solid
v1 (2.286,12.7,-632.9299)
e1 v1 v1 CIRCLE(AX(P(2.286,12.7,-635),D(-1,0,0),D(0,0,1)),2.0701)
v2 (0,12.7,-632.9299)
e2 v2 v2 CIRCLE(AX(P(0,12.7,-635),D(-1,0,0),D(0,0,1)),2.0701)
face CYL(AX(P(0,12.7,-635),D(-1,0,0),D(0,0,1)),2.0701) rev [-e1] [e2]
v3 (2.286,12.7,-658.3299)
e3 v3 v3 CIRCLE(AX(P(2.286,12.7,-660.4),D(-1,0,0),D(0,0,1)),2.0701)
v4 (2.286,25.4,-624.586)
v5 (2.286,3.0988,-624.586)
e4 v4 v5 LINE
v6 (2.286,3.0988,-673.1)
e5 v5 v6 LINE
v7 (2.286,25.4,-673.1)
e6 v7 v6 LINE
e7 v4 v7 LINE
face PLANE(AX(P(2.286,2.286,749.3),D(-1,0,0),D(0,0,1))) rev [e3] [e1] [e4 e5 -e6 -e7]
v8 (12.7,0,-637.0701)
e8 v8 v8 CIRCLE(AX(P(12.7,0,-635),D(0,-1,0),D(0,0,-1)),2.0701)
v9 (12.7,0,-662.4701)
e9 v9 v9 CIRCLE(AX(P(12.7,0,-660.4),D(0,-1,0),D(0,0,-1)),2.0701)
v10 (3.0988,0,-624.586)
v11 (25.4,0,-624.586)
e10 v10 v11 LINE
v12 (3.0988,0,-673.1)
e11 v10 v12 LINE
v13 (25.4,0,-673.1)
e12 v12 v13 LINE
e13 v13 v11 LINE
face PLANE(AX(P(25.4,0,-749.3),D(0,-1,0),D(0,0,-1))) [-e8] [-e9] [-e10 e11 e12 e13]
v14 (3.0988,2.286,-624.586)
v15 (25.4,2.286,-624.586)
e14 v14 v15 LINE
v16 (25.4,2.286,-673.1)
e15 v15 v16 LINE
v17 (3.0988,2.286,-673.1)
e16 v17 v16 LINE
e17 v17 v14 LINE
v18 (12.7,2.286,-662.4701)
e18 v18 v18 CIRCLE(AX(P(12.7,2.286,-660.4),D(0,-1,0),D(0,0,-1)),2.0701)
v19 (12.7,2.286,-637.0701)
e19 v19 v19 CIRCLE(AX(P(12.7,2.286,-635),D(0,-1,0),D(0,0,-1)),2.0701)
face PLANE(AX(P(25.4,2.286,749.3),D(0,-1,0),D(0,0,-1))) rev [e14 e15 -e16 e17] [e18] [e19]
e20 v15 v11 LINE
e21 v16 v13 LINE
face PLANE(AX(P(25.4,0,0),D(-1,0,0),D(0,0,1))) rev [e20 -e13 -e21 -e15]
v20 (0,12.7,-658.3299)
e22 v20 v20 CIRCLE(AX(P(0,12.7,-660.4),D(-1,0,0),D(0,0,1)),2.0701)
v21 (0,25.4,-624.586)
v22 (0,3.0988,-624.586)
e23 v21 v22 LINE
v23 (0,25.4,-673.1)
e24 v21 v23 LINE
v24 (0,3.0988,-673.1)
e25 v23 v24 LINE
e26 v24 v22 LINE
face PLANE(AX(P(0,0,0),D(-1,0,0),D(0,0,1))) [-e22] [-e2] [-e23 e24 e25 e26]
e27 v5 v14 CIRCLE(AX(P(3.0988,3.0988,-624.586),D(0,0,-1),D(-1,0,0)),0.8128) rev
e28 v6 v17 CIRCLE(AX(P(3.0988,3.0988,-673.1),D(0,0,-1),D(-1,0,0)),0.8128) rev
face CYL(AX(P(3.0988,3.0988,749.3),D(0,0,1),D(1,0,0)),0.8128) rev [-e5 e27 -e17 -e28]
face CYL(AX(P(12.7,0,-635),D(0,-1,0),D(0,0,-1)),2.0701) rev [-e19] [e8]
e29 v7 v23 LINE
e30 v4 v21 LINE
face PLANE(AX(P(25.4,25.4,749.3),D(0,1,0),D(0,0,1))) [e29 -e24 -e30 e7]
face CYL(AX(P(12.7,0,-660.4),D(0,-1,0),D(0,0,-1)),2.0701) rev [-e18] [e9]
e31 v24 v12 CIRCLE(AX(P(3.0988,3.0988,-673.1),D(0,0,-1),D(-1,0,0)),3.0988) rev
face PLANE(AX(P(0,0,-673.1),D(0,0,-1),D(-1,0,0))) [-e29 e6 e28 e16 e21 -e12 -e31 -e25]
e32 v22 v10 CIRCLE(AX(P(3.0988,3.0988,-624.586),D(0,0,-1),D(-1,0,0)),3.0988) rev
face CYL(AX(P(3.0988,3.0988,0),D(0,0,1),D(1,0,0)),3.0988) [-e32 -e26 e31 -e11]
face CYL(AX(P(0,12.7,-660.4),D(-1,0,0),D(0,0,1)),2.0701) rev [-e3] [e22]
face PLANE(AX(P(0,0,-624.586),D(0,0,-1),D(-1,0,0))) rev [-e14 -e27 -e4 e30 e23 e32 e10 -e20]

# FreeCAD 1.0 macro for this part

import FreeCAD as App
import Part
import Sketcher
Q = App.Units.Quantity


def edges_at(feature, points):
    """Names of the edges that pass closest to the given points."""
    edges = feature.Shape.Edges
    near = lambda p: min(range(len(edges)), key=lambda i: edges[i].distToShape(Part.Vertex(*p))[0])
    return sorted({f"Edge{near(p) + 1}" for p in points})


def add_polygon(sketch, points):
    """Adds a closed chain of lines whose ends are joined by coincident constraints."""
    first, n = sketch.GeometryCount, len(points)
    for a, b in zip(points, points[1:] + points[:1]):
        sketch.addGeometry(Part.LineSegment(App.Vector(*a, 0), App.Vector(*b, 0)), False)
    for i in range(n):
        sketch.addConstraint(Sketcher.Constraint("Coincident", first + i, 2, first + (i + 1) % n, 1))

doc = App.newDocument("Part")
body = doc.addObject("PartDesign::Body", "Body")

sketch1 = body.newObject("Sketcher::SketchObject", "Sketch")
sketch1.AttachmentSupport = (doc.getObject("YZ_Plane"), [""])
sketch1.MapMode = "FlatFace"
add_polygon(sketch1, [(25.4, 749.3), (25.4, -749.3), (0, -749.3), (0, 749.3)])
sketch1.addConstraint(Sketcher.Constraint("Vertical", 0))
sketch1.addConstraint(Sketcher.Constraint("Horizontal", 1))
sketch1.addConstraint(Sketcher.Constraint("Vertical", 2))
sketch1.addConstraint(Sketcher.Constraint("Horizontal", 3))
sketch1.addConstraint(Sketcher.Constraint("Symmetric", 1, 2, 2, 2, -1, 1))
sketch1.addConstraint(Sketcher.Constraint("DistanceX", 1, 2, 1, 1, Q("1 in")))
sketch1.addConstraint(Sketcher.Constraint("DistanceY", 0, 2, 0, 1, Q("59 in")))
pad1 = body.newObject("PartDesign::Pad", "Pad")
pad1.Profile = sketch1
pad1.Length = Q("1 in")

sketch2 = body.newObject("Sketcher::SketchObject", "Sketch001")
sketch2.AttachmentSupport = (doc.getObject("XY_Plane"), [""])
sketch2.MapMode = "FlatFace"
sketch2.AttachmentOffset = App.Placement(App.Vector(0, 0, -29.5 * 25.4), App.Rotation())
add_polygon(sketch2, [(25.4, 25.4), (25.4, 2.286), (2.286, 2.286), (2.286, 25.4)])
sketch2.addConstraint(Sketcher.Constraint("Vertical", 0))
sketch2.addConstraint(Sketcher.Constraint("Horizontal", 1))
sketch2.addConstraint(Sketcher.Constraint("Vertical", 2))
sketch2.addConstraint(Sketcher.Constraint("Horizontal", 3))
sketch2.addConstraint(Sketcher.Constraint("Equal", 3, 0))
sketch2.addConstraint(Sketcher.Constraint("DistanceX", -1, 1, 0, 2, Q("1 in")))
sketch2.addConstraint(Sketcher.Constraint("DistanceY", -1, 1, 2, 2, Q("1 in")))
sketch2.addConstraint(Sketcher.Constraint("DistanceX", 1, 2, 1, 1, Q("0.91 in")))
pocket1 = body.newObject("PartDesign::Pocket", "Pocket")
pocket1.Profile = sketch2
pocket1.Type = "ThroughAll"
pocket1.Reversed = True

sketch3 = body.newObject("Sketcher::SketchObject", "Sketch002")
sketch3.AttachmentSupport = (doc.getObject("XZ_Plane"), [""])
sketch3.MapMode = "FlatFace"
sketch3.addGeometry(Part.Circle(App.Vector(12.7, -736.6, 0), App.Vector(0, 0, 1), 2.0701), False)
sketch3.addGeometry(Part.Circle(App.Vector(12.7, -711.2, 0), App.Vector(0, 0, 1), 2.0701), False)
sketch3.addGeometry(Part.Circle(App.Vector(12.7, -685.8, 0), App.Vector(0, 0, 1), 2.0701), False)
sketch3.addGeometry(Part.Circle(App.Vector(12.7, -660.4, 0), App.Vector(0, 0, 1), 2.0701), False)
sketch3.addGeometry(Part.Circle(App.Vector(12.7, -635, 0), App.Vector(0, 0, 1), 2.0701), False)
sketch3.addGeometry(Part.Circle(App.Vector(12.7, -609.6, 0), App.Vector(0, 0, 1), 2.0701), False)
sketch3.addGeometry(Part.Circle(App.Vector(12.7, -584.2, 0), App.Vector(0, 0, 1), 2.0701), False)
sketch3.addGeometry(Part.Circle(App.Vector(12.7, -558.8, 0), App.Vector(0, 0, 1), 2.0701), False)
sketch3.addGeometry(Part.Circle(App.Vector(12.7, -533.4, 0), App.Vector(0, 0, 1), 2.0701), False)
sketch3.addGeometry(Part.Circle(App.Vector(12.7, -508, 0), App.Vector(0, 0, 1), 2.0701), False)
sketch3.addGeometry(Part.Circle(App.Vector(12.7, -482.6, 0), App.Vector(0, 0, 1), 2.0701), False)
sketch3.addGeometry(Part.Circle(App.Vector(12.7, -457.2, 0), App.Vector(0, 0, 1), 2.0701), False)
sketch3.addGeometry(Part.Circle(App.Vector(12.7, -431.8, 0), App.Vector(0, 0, 1), 2.0701), False)
sketch3.addGeometry(Part.Circle(App.Vector(12.7, -406.4, 0), App.Vector(0, 0, 1), 2.0701), False)
sketch3.addGeometry(Part.Circle(App.Vector(12.7, -381, 0), App.Vector(0, 0, 1), 2.0701), False)
sketch3.addGeometry(Part.Circle(App.Vector(12.7, -355.6, 0), App.Vector(0, 0, 1), 2.0701), False)
sketch3.addGeometry(Part.Circle(App.Vector(12.7, -330.2, 0), App.Vector(0, 0, 1), 2.0701), False)
sketch3.addGeometry(Part.Circle(App.Vector(12.7, -304.8, 0), App.Vector(0, 0, 1), 2.0701), False)
sketch3.addGeometry(Part.Circle(App.Vector(12.7, -279.4, 0), App.Vector(0, 0, 1), 2.0701), False)
sketch3.addGeometry(Part.Circle(App.Vector(12.7, -254, 0), App.Vector(0, 0, 1), 2.0701), False)
sketch3.addGeometry(Part.Circle(App.Vector(12.7, -228.6, 0), App.Vector(0, 0, 1), 2.0701), False)
sketch3.addGeometry(Part.Circle(App.Vector(12.7, -203.2, 0), App.Vector(0, 0, 1), 2.0701), False)
sketch3.addGeometry(Part.Circle(App.Vector(12.7, -177.8, 0), App.Vector(0, 0, 1), 2.0701), False)
sketch3.addGeometry(Part.Circle(App.Vector(12.7, -152.4, 0), App.Vector(0, 0, 1), 2.0701), False)
sketch3.addGeometry(Part.Circle(App.Vector(12.7, -127, 0), App.Vector(0, 0, 1), 2.0701), False)
sketch3.addGeometry(Part.Circle(App.Vector(12.7, -101.6, 0), App.Vector(0, 0, 1), 2.0701), False)
sketch3.addGeometry(Part.Circle(App.Vector(12.7, -76.2, 0), App.Vector(0, 0, 1), 2.0701), False)
sketch3.addGeometry(Part.Circle(App.Vector(12.7, -50.8, 0), App.Vector(0, 0, 1), 2.0701), False)
sketch3.addGeometry(Part.Circle(App.Vector(12.7, -25.4, 0), App.Vector(0, 0, 1), 2.0701), False)
sketch3.addGeometry(Part.Circle(App.Vector(12.7, 0, 0), App.Vector(0, 0, 1), 2.0701), False)
sketch3.addGeometry(Part.Circle(App.Vector(12.7, 25.4, 0), App.Vector(0, 0, 1), 2.0701), False)
sketch3.addGeometry(Part.Circle(App.Vector(12.7, 50.8, 0), App.Vector(0, 0, 1), 2.0701), False)
sketch3.addGeometry(Part.Circle(App.Vector(12.7, 76.2, 0), App.Vector(0, 0, 1), 2.0701), False)
sketch3.addGeometry(Part.Circle(App.Vector(12.7, 101.6, 0), App.Vector(0, 0, 1), 2.0701), False)
sketch3.addGeometry(Part.Circle(App.Vector(12.7, 127, 0), App.Vector(0, 0, 1), 2.0701), False)
sketch3.addGeometry(Part.Circle(App.Vector(12.7, 152.4, 0), App.Vector(0, 0, 1), 2.0701), False)
sketch3.addGeometry(Part.Circle(App.Vector(12.7, 177.8, 0), App.Vector(0, 0, 1), 2.0701), False)
sketch3.addGeometry(Part.Circle(App.Vector(12.7, 203.2, 0), App.Vector(0, 0, 1), 2.0701), False)
sketch3.addGeometry(Part.Circle(App.Vector(12.7, 228.6, 0), App.Vector(0, 0, 1), 2.0701), False)
sketch3.addGeometry(Part.Circle(App.Vector(12.7, 254, 0), App.Vector(0, 0, 1), 2.0701), False)
sketch3.addGeometry(Part.Circle(App.Vector(12.7, 279.4, 0), App.Vector(0, 0, 1), 2.0701), False)
sketch3.addGeometry(Part.Circle(App.Vector(12.7, 304.8, 0), App.Vector(0, 0, 1), 2.0701), False)
sketch3.addGeometry(Part.Circle(App.Vector(12.7, 330.2, 0), App.Vector(0, 0, 1), 2.0701), False)
sketch3.addGeometry(Part.Circle(App.Vector(12.7, 355.6, 0), App.Vector(0, 0, 1), 2.0701), False)
sketch3.addGeometry(Part.Circle(App.Vector(12.7, 381, 0), App.Vector(0, 0, 1), 2.0701), False)
sketch3.addGeometry(Part.Circle(App.Vector(12.7, 406.4, 0), App.Vector(0, 0, 1), 2.0701), False)
sketch3.addGeometry(Part.Circle(App.Vector(12.7, 431.8, 0), App.Vector(0, 0, 1), 2.0701), False)
sketch3.addGeometry(Part.Circle(App.Vector(12.7, 457.2, 0), App.Vector(0, 0, 1), 2.0701), False)
sketch3.addGeometry(Part.Circle(App.Vector(12.7, 482.6, 0), App.Vector(0, 0, 1), 2.0701), False)
sketch3.addGeometry(Part.Circle(App.Vector(12.7, 508, 0), App.Vector(0, 0, 1), 2.0701), False)
sketch3.addGeometry(Part.Circle(App.Vector(12.7, 533.4, 0), App.Vector(0, 0, 1), 2.0701), False)
sketch3.addGeometry(Part.Circle(App.Vector(12.7, 558.8, 0), App.Vector(0, 0, 1), 2.0701), False)
sketch3.addGeometry(Part.Circle(App.Vector(12.7, 584.2, 0), App.Vector(0, 0, 1), 2.0701), False)
sketch3.addGeometry(Part.Circle(App.Vector(12.7, 609.6, 0), App.Vector(0, 0, 1), 2.0701), False)
sketch3.addGeometry(Part.Circle(App.Vector(12.7, 635, 0), App.Vector(0, 0, 1), 2.0701), False)
sketch3.addGeometry(Part.Circle(App.Vector(12.7, 660.4, 0), App.Vector(0, 0, 1), 2.0701), False)
sketch3.addGeometry(Part.Circle(App.Vector(12.7, 685.8, 0), App.Vector(0, 0, 1), 2.0701), False)
sketch3.addGeometry(Part.Circle(App.Vector(12.7, 711.2, 0), App.Vector(0, 0, 1), 2.0701), False)
sketch3.addGeometry(Part.Circle(App.Vector(12.7, 736.6, 0), App.Vector(0, 0, 1), 2.0701), False)
sketch3.addConstraint(Sketcher.Constraint("Equal", 0, 1))
sketch3.addConstraint(Sketcher.Constraint("Equal", 1, 2))
sketch3.addConstraint(Sketcher.Constraint("Equal", 2, 3))
sketch3.addConstraint(Sketcher.Constraint("Equal", 3, 4))
sketch3.addConstraint(Sketcher.Constraint("Equal", 4, 5))
sketch3.addConstraint(Sketcher.Constraint("Equal", 5, 6))
sketch3.addConstraint(Sketcher.Constraint("Equal", 6, 7))
sketch3.addConstraint(Sketcher.Constraint("Equal", 7, 8))
sketch3.addConstraint(Sketcher.Constraint("Equal", 8, 9))
sketch3.addConstraint(Sketcher.Constraint("Equal", 9, 10))
sketch3.addConstraint(Sketcher.Constraint("Equal", 10, 11))
sketch3.addConstraint(Sketcher.Constraint("Equal", 11, 12))
sketch3.addConstraint(Sketcher.Constraint("Equal", 12, 13))
sketch3.addConstraint(Sketcher.Constraint("Equal", 13, 14))
sketch3.addConstraint(Sketcher.Constraint("Equal", 14, 15))
sketch3.addConstraint(Sketcher.Constraint("Equal", 15, 16))
sketch3.addConstraint(Sketcher.Constraint("Equal", 16, 17))
sketch3.addConstraint(Sketcher.Constraint("Equal", 17, 18))
sketch3.addConstraint(Sketcher.Constraint("Equal", 18, 19))
sketch3.addConstraint(Sketcher.Constraint("Equal", 19, 20))
sketch3.addConstraint(Sketcher.Constraint("Equal", 20, 21))
sketch3.addConstraint(Sketcher.Constraint("Equal", 21, 22))
sketch3.addConstraint(Sketcher.Constraint("Equal", 22, 23))
sketch3.addConstraint(Sketcher.Constraint("Equal", 23, 24))
sketch3.addConstraint(Sketcher.Constraint("Equal", 24, 25))
sketch3.addConstraint(Sketcher.Constraint("Equal", 25, 26))
sketch3.addConstraint(Sketcher.Constraint("Equal", 26, 27))
sketch3.addConstraint(Sketcher.Constraint("Equal", 27, 28))
sketch3.addConstraint(Sketcher.Constraint("Equal", 28, 29))
sketch3.addConstraint(Sketcher.Constraint("Equal", 29, 30))
sketch3.addConstraint(Sketcher.Constraint("Equal", 30, 31))
sketch3.addConstraint(Sketcher.Constraint("Equal", 31, 32))
sketch3.addConstraint(Sketcher.Constraint("Equal", 32, 33))
sketch3.addConstraint(Sketcher.Constraint("Equal", 33, 34))
sketch3.addConstraint(Sketcher.Constraint("Equal", 34, 35))
sketch3.addConstraint(Sketcher.Constraint("Equal", 35, 36))
sketch3.addConstraint(Sketcher.Constraint("Equal", 36, 37))
sketch3.addConstraint(Sketcher.Constraint("Equal", 37, 38))
sketch3.addConstraint(Sketcher.Constraint("Equal", 38, 39))
sketch3.addConstraint(Sketcher.Constraint("Equal", 39, 40))
sketch3.addConstraint(Sketcher.Constraint("Equal", 40, 41))
sketch3.addConstraint(Sketcher.Constraint("Equal", 41, 42))
sketch3.addConstraint(Sketcher.Constraint("Equal", 42, 43))
sketch3.addConstraint(Sketcher.Constraint("Equal", 43, 44))
sketch3.addConstraint(Sketcher.Constraint("Equal", 44, 45))
sketch3.addConstraint(Sketcher.Constraint("Equal", 45, 46))
sketch3.addConstraint(Sketcher.Constraint("Equal", 46, 47))
sketch3.addConstraint(Sketcher.Constraint("Equal", 47, 48))
sketch3.addConstraint(Sketcher.Constraint("Equal", 48, 49))
sketch3.addConstraint(Sketcher.Constraint("Equal", 49, 50))
sketch3.addConstraint(Sketcher.Constraint("Equal", 50, 51))
sketch3.addConstraint(Sketcher.Constraint("Equal", 51, 52))
sketch3.addConstraint(Sketcher.Constraint("Equal", 52, 53))
sketch3.addConstraint(Sketcher.Constraint("Equal", 53, 54))
sketch3.addConstraint(Sketcher.Constraint("Equal", 54, 55))
sketch3.addConstraint(Sketcher.Constraint("Equal", 55, 56))
sketch3.addConstraint(Sketcher.Constraint("Equal", 56, 57))
sketch3.addConstraint(Sketcher.Constraint("Equal", 57, 58))
sketch3.addConstraint(Sketcher.Constraint("Symmetric", 28, 3, 30, 3, -1))
sketch3.addConstraint(Sketcher.Constraint("Symmetric", 27, 3, 31, 3, -1))
sketch3.addConstraint(Sketcher.Constraint("Symmetric", 26, 3, 32, 3, -1))
sketch3.addConstraint(Sketcher.Constraint("Symmetric", 25, 3, 33, 3, -1))
sketch3.addConstraint(Sketcher.Constraint("Symmetric", 24, 3, 34, 3, -1))
sketch3.addConstraint(Sketcher.Constraint("Symmetric", 23, 3, 35, 3, -1))
sketch3.addConstraint(Sketcher.Constraint("Symmetric", 22, 3, 36, 3, -1))
sketch3.addConstraint(Sketcher.Constraint("Symmetric", 21, 3, 37, 3, -1))
sketch3.addConstraint(Sketcher.Constraint("Symmetric", 20, 3, 38, 3, -1))
sketch3.addConstraint(Sketcher.Constraint("Symmetric", 19, 3, 39, 3, -1))
sketch3.addConstraint(Sketcher.Constraint("Symmetric", 18, 3, 40, 3, -1))
sketch3.addConstraint(Sketcher.Constraint("Symmetric", 17, 3, 41, 3, -1))
sketch3.addConstraint(Sketcher.Constraint("Symmetric", 16, 3, 42, 3, -1))
sketch3.addConstraint(Sketcher.Constraint("Symmetric", 15, 3, 43, 3, -1))
sketch3.addConstraint(Sketcher.Constraint("Symmetric", 14, 3, 44, 3, -1))
sketch3.addConstraint(Sketcher.Constraint("Symmetric", 13, 3, 45, 3, -1))
sketch3.addConstraint(Sketcher.Constraint("Symmetric", 12, 3, 46, 3, -1))
sketch3.addConstraint(Sketcher.Constraint("Symmetric", 11, 3, 47, 3, -1))
sketch3.addConstraint(Sketcher.Constraint("Symmetric", 10, 3, 48, 3, -1))
sketch3.addConstraint(Sketcher.Constraint("Symmetric", 9, 3, 49, 3, -1))
sketch3.addConstraint(Sketcher.Constraint("Symmetric", 8, 3, 50, 3, -1))
sketch3.addConstraint(Sketcher.Constraint("Symmetric", 7, 3, 51, 3, -1))
sketch3.addConstraint(Sketcher.Constraint("Symmetric", 6, 3, 52, 3, -1))
sketch3.addConstraint(Sketcher.Constraint("Symmetric", 5, 3, 53, 3, -1))
sketch3.addConstraint(Sketcher.Constraint("Symmetric", 4, 3, 54, 3, -1))
sketch3.addConstraint(Sketcher.Constraint("Symmetric", 3, 3, 55, 3, -1))
sketch3.addConstraint(Sketcher.Constraint("Symmetric", 2, 3, 56, 3, -1))
sketch3.addConstraint(Sketcher.Constraint("Symmetric", 1, 3, 57, 3, -1))
sketch3.addConstraint(Sketcher.Constraint("Symmetric", 0, 3, 58, 3, -1))
sketch3.addConstraint(Sketcher.Constraint("PointOnObject", 29, 3, -1))
sketch3.addConstraint(Sketcher.Constraint("Vertical", 0, 3, 1, 3))
sketch3.addConstraint(Sketcher.Constraint("Vertical", 1, 3, 2, 3))
sketch3.addConstraint(Sketcher.Constraint("Vertical", 2, 3, 3, 3))
sketch3.addConstraint(Sketcher.Constraint("Vertical", 3, 3, 4, 3))
sketch3.addConstraint(Sketcher.Constraint("Vertical", 4, 3, 5, 3))
sketch3.addConstraint(Sketcher.Constraint("Vertical", 5, 3, 6, 3))
sketch3.addConstraint(Sketcher.Constraint("Vertical", 6, 3, 7, 3))
sketch3.addConstraint(Sketcher.Constraint("Vertical", 7, 3, 8, 3))
sketch3.addConstraint(Sketcher.Constraint("Vertical", 8, 3, 9, 3))
sketch3.addConstraint(Sketcher.Constraint("Vertical", 9, 3, 10, 3))
sketch3.addConstraint(Sketcher.Constraint("Vertical", 10, 3, 11, 3))
sketch3.addConstraint(Sketcher.Constraint("Vertical", 11, 3, 12, 3))
sketch3.addConstraint(Sketcher.Constraint("Vertical", 12, 3, 13, 3))
sketch3.addConstraint(Sketcher.Constraint("Vertical", 13, 3, 14, 3))
sketch3.addConstraint(Sketcher.Constraint("Vertical", 14, 3, 15, 3))
sketch3.addConstraint(Sketcher.Constraint("Vertical", 15, 3, 16, 3))
sketch3.addConstraint(Sketcher.Constraint("Vertical", 16, 3, 17, 3))
sketch3.addConstraint(Sketcher.Constraint("Vertical", 17, 3, 18, 3))
sketch3.addConstraint(Sketcher.Constraint("Vertical", 18, 3, 19, 3))
sketch3.addConstraint(Sketcher.Constraint("Vertical", 19, 3, 20, 3))
sketch3.addConstraint(Sketcher.Constraint("Vertical", 20, 3, 21, 3))
sketch3.addConstraint(Sketcher.Constraint("Vertical", 21, 3, 22, 3))
sketch3.addConstraint(Sketcher.Constraint("Vertical", 22, 3, 23, 3))
sketch3.addConstraint(Sketcher.Constraint("Vertical", 23, 3, 24, 3))
sketch3.addConstraint(Sketcher.Constraint("Vertical", 24, 3, 25, 3))
sketch3.addConstraint(Sketcher.Constraint("Vertical", 25, 3, 26, 3))
sketch3.addConstraint(Sketcher.Constraint("Vertical", 26, 3, 27, 3))
sketch3.addConstraint(Sketcher.Constraint("Vertical", 27, 3, 28, 3))
sketch3.addConstraint(Sketcher.Constraint("Vertical", 28, 3, 29, 3))
sketch3.addConstraint(Sketcher.Constraint("Diameter", 0, Q("0.163 in")))
sketch3.addConstraint(Sketcher.Constraint("DistanceY", 0, 3, -1, 1, Q("29 in")))
sketch3.addConstraint(Sketcher.Constraint("DistanceY", 1, 3, -1, 1, Q("28 in")))
sketch3.addConstraint(Sketcher.Constraint("DistanceY", 2, 3, -1, 1, Q("27 in")))
sketch3.addConstraint(Sketcher.Constraint("DistanceY", 3, 3, -1, 1, Q("26 in")))
sketch3.addConstraint(Sketcher.Constraint("DistanceY", 4, 3, -1, 1, Q("25 in")))
sketch3.addConstraint(Sketcher.Constraint("DistanceY", 5, 3, -1, 1, Q("24 in")))
sketch3.addConstraint(Sketcher.Constraint("DistanceY", 6, 3, -1, 1, Q("23 in")))
sketch3.addConstraint(Sketcher.Constraint("DistanceY", 7, 3, -1, 1, Q("22 in")))
sketch3.addConstraint(Sketcher.Constraint("DistanceY", 8, 3, -1, 1, Q("21 in")))
sketch3.addConstraint(Sketcher.Constraint("DistanceY", 9, 3, -1, 1, Q("20 in")))
sketch3.addConstraint(Sketcher.Constraint("DistanceY", 10, 3, -1, 1, Q("19 in")))
sketch3.addConstraint(Sketcher.Constraint("DistanceY", 11, 3, -1, 1, Q("18 in")))
sketch3.addConstraint(Sketcher.Constraint("DistanceY", 12, 3, -1, 1, Q("17 in")))
sketch3.addConstraint(Sketcher.Constraint("DistanceY", 13, 3, -1, 1, Q("16 in")))
sketch3.addConstraint(Sketcher.Constraint("DistanceY", 14, 3, -1, 1, Q("15 in")))
sketch3.addConstraint(Sketcher.Constraint("DistanceY", 15, 3, -1, 1, Q("14 in")))
sketch3.addConstraint(Sketcher.Constraint("DistanceY", 16, 3, -1, 1, Q("13 in")))
sketch3.addConstraint(Sketcher.Constraint("DistanceY", 17, 3, -1, 1, Q("12 in")))
sketch3.addConstraint(Sketcher.Constraint("DistanceY", 18, 3, -1, 1, Q("11 in")))
sketch3.addConstraint(Sketcher.Constraint("DistanceY", 19, 3, -1, 1, Q("10 in")))
sketch3.addConstraint(Sketcher.Constraint("DistanceY", 20, 3, -1, 1, Q("9 in")))
sketch3.addConstraint(Sketcher.Constraint("DistanceY", 21, 3, -1, 1, Q("8 in")))
sketch3.addConstraint(Sketcher.Constraint("DistanceY", 22, 3, -1, 1, Q("7 in")))
sketch3.addConstraint(Sketcher.Constraint("DistanceY", 23, 3, -1, 1, Q("6 in")))
sketch3.addConstraint(Sketcher.Constraint("DistanceY", 24, 3, -1, 1, Q("5 in")))
sketch3.addConstraint(Sketcher.Constraint("DistanceY", 25, 3, -1, 1, Q("4 in")))
sketch3.addConstraint(Sketcher.Constraint("DistanceY", 26, 3, -1, 1, Q("3 in")))
sketch3.addConstraint(Sketcher.Constraint("DistanceY", 27, 3, -1, 1, Q("2 in")))
sketch3.addConstraint(Sketcher.Constraint("DistanceY", 28, 3, -1, 1, Q("1 in")))
sketch3.addConstraint(Sketcher.Constraint("DistanceX", -1, 1, 0, 3, Q("0.5 in")))
doc.recompute()
hole = body.newObject("PartDesign::Hole", "Hole")
hole.Profile = sketch3
hole.ThreadType = "None"
hole.Diameter = Q("0.163 in")
hole.DepthType = "Dimension"
hole.Depth = Q("1 in")
hole.DrillPoint = "Flat"

sketch4 = body.newObject("Sketcher::SketchObject", "Sketch003")
sketch4.AttachmentSupport = (doc.getObject("YZ_Plane"), [""])
sketch4.MapMode = "FlatFace"
sketch4.addGeometry(Part.Circle(App.Vector(12.7, 711.2, 0), App.Vector(0, 0, 1), 2.0701), False)
sketch4.addGeometry(Part.Circle(App.Vector(12.7, 736.6, 0), App.Vector(0, 0, 1), 2.0701), False)
sketch4.addGeometry(Part.Circle(App.Vector(12.7, 685.8, 0), App.Vector(0, 0, 1), 2.0701), False)
sketch4.addGeometry(Part.Circle(App.Vector(12.7, 660.4, 0), App.Vector(0, 0, 1), 2.0701), False)
sketch4.addGeometry(Part.Circle(App.Vector(12.7, 635, 0), App.Vector(0, 0, 1), 2.0701), False)
sketch4.addGeometry(Part.Circle(App.Vector(12.7, 609.6, 0), App.Vector(0, 0, 1), 2.0701), False)
sketch4.addGeometry(Part.Circle(App.Vector(12.7, 584.2, 0), App.Vector(0, 0, 1), 2.0701), False)
sketch4.addGeometry(Part.Circle(App.Vector(12.7, 558.8, 0), App.Vector(0, 0, 1), 2.0701), False)
sketch4.addGeometry(Part.Circle(App.Vector(12.7, 533.4, 0), App.Vector(0, 0, 1), 2.0701), False)
sketch4.addGeometry(Part.Circle(App.Vector(12.7, 508, 0), App.Vector(0, 0, 1), 2.0701), False)
sketch4.addGeometry(Part.Circle(App.Vector(12.7, 482.6, 0), App.Vector(0, 0, 1), 2.0701), False)
sketch4.addGeometry(Part.Circle(App.Vector(12.7, 457.2, 0), App.Vector(0, 0, 1), 2.0701), False)
sketch4.addGeometry(Part.Circle(App.Vector(12.7, 431.8, 0), App.Vector(0, 0, 1), 2.0701), False)
sketch4.addGeometry(Part.Circle(App.Vector(12.7, 406.4, 0), App.Vector(0, 0, 1), 2.0701), False)
sketch4.addGeometry(Part.Circle(App.Vector(12.7, 381, 0), App.Vector(0, 0, 1), 2.0701), False)
sketch4.addGeometry(Part.Circle(App.Vector(12.7, 355.6, 0), App.Vector(0, 0, 1), 2.0701), False)
sketch4.addGeometry(Part.Circle(App.Vector(12.7, 330.2, 0), App.Vector(0, 0, 1), 2.0701), False)
sketch4.addGeometry(Part.Circle(App.Vector(12.7, 304.8, 0), App.Vector(0, 0, 1), 2.0701), False)
sketch4.addGeometry(Part.Circle(App.Vector(12.7, 279.4, 0), App.Vector(0, 0, 1), 2.0701), False)
sketch4.addGeometry(Part.Circle(App.Vector(12.7, 254, 0), App.Vector(0, 0, 1), 2.0701), False)
sketch4.addGeometry(Part.Circle(App.Vector(12.7, 228.6, 0), App.Vector(0, 0, 1), 2.0701), False)
sketch4.addGeometry(Part.Circle(App.Vector(12.7, 203.2, 0), App.Vector(0, 0, 1), 2.0701), False)
sketch4.addGeometry(Part.Circle(App.Vector(12.7, 177.8, 0), App.Vector(0, 0, 1), 2.0701), False)
sketch4.addGeometry(Part.Circle(App.Vector(12.7, 152.4, 0), App.Vector(0, 0, 1), 2.0701), False)
sketch4.addGeometry(Part.Circle(App.Vector(12.7, 127, 0), App.Vector(0, 0, 1), 2.0701), False)
sketch4.addGeometry(Part.Circle(App.Vector(12.7, 101.6, 0), App.Vector(0, 0, 1), 2.0701), False)
sketch4.addGeometry(Part.Circle(App.Vector(12.7, 76.2, 0), App.Vector(0, 0, 1), 2.0701), False)
sketch4.addGeometry(Part.Circle(App.Vector(12.7, 50.8, 0), App.Vector(0, 0, 1), 2.0701), False)
sketch4.addGeometry(Part.Circle(App.Vector(12.7, 25.4, 0), App.Vector(0, 0, 1), 2.0701), False)
sketch4.addGeometry(Part.Circle(App.Vector(12.7, 0, 0), App.Vector(0, 0, 1), 2.0701), False)
sketch4.addGeometry(Part.Circle(App.Vector(12.7, -25.4, 0), App.Vector(0, 0, 1), 2.0701), False)
sketch4.addGeometry(Part.Circle(App.Vector(12.7, -50.8, 0), App.Vector(0, 0, 1), 2.0701), False)
sketch4.addGeometry(Part.Circle(App.Vector(12.7, -76.2, 0), App.Vector(0, 0, 1), 2.0701), False)
sketch4.addGeometry(Part.Circle(App.Vector(12.7, -101.6, 0), App.Vector(0, 0, 1), 2.0701), False)
sketch4.addGeometry(Part.Circle(App.Vector(12.7, -127, 0), App.Vector(0, 0, 1), 2.0701), False)
sketch4.addGeometry(Part.Circle(App.Vector(12.7, -152.4, 0), App.Vector(0, 0, 1), 2.0701), False)
sketch4.addGeometry(Part.Circle(App.Vector(12.7, -177.8, 0), App.Vector(0, 0, 1), 2.0701), False)
sketch4.addGeometry(Part.Circle(App.Vector(12.7, -203.2, 0), App.Vector(0, 0, 1), 2.0701), False)
sketch4.addGeometry(Part.Circle(App.Vector(12.7, -228.6, 0), App.Vector(0, 0, 1), 2.0701), False)
sketch4.addGeometry(Part.Circle(App.Vector(12.7, -254, 0), App.Vector(0, 0, 1), 2.0701), False)
sketch4.addGeometry(Part.Circle(App.Vector(12.7, -279.4, 0), App.Vector(0, 0, 1), 2.0701), False)
sketch4.addGeometry(Part.Circle(App.Vector(12.7, -304.8, 0), App.Vector(0, 0, 1), 2.0701), False)
sketch4.addGeometry(Part.Circle(App.Vector(12.7, -330.2, 0), App.Vector(0, 0, 1), 2.0701), False)
sketch4.addGeometry(Part.Circle(App.Vector(12.7, -355.6, 0), App.Vector(0, 0, 1), 2.0701), False)
sketch4.addGeometry(Part.Circle(App.Vector(12.7, -381, 0), App.Vector(0, 0, 1), 2.0701), False)
sketch4.addGeometry(Part.Circle(App.Vector(12.7, -406.4, 0), App.Vector(0, 0, 1), 2.0701), False)
sketch4.addGeometry(Part.Circle(App.Vector(12.7, -431.8, 0), App.Vector(0, 0, 1), 2.0701), False)
sketch4.addGeometry(Part.Circle(App.Vector(12.7, -457.2, 0), App.Vector(0, 0, 1), 2.0701), False)
sketch4.addGeometry(Part.Circle(App.Vector(12.7, -482.6, 0), App.Vector(0, 0, 1), 2.0701), False)
sketch4.addGeometry(Part.Circle(App.Vector(12.7, -508, 0), App.Vector(0, 0, 1), 2.0701), False)
sketch4.addGeometry(Part.Circle(App.Vector(12.7, -533.4, 0), App.Vector(0, 0, 1), 2.0701), False)
sketch4.addGeometry(Part.Circle(App.Vector(12.7, -558.8, 0), App.Vector(0, 0, 1), 2.0701), False)
sketch4.addGeometry(Part.Circle(App.Vector(12.7, -584.2, 0), App.Vector(0, 0, 1), 2.0701), False)
sketch4.addGeometry(Part.Circle(App.Vector(12.7, -609.6, 0), App.Vector(0, 0, 1), 2.0701), False)
sketch4.addGeometry(Part.Circle(App.Vector(12.7, -635, 0), App.Vector(0, 0, 1), 2.0701), False)
sketch4.addGeometry(Part.Circle(App.Vector(12.7, -660.4, 0), App.Vector(0, 0, 1), 2.0701), False)
sketch4.addGeometry(Part.Circle(App.Vector(12.7, -685.8, 0), App.Vector(0, 0, 1), 2.0701), False)
sketch4.addGeometry(Part.Circle(App.Vector(12.7, -711.2, 0), App.Vector(0, 0, 1), 2.0701), False)
sketch4.addGeometry(Part.Circle(App.Vector(12.7, -736.6, 0), App.Vector(0, 0, 1), 2.0701), False)
sketch4.addConstraint(Sketcher.Constraint("Equal", 0, 1))
sketch4.addConstraint(Sketcher.Constraint("Equal", 1, 2))
sketch4.addConstraint(Sketcher.Constraint("Equal", 2, 3))
sketch4.addConstraint(Sketcher.Constraint("Equal", 3, 4))
sketch4.addConstraint(Sketcher.Constraint("Equal", 4, 5))
sketch4.addConstraint(Sketcher.Constraint("Equal", 5, 6))
sketch4.addConstraint(Sketcher.Constraint("Equal", 6, 7))
sketch4.addConstraint(Sketcher.Constraint("Equal", 7, 8))
sketch4.addConstraint(Sketcher.Constraint("Equal", 8, 9))
sketch4.addConstraint(Sketcher.Constraint("Equal", 9, 10))
sketch4.addConstraint(Sketcher.Constraint("Equal", 10, 11))
sketch4.addConstraint(Sketcher.Constraint("Equal", 11, 12))
sketch4.addConstraint(Sketcher.Constraint("Equal", 12, 13))
sketch4.addConstraint(Sketcher.Constraint("Equal", 13, 14))
sketch4.addConstraint(Sketcher.Constraint("Equal", 14, 15))
sketch4.addConstraint(Sketcher.Constraint("Equal", 15, 16))
sketch4.addConstraint(Sketcher.Constraint("Equal", 16, 17))
sketch4.addConstraint(Sketcher.Constraint("Equal", 17, 18))
sketch4.addConstraint(Sketcher.Constraint("Equal", 18, 19))
sketch4.addConstraint(Sketcher.Constraint("Equal", 19, 20))
sketch4.addConstraint(Sketcher.Constraint("Equal", 20, 21))
sketch4.addConstraint(Sketcher.Constraint("Equal", 21, 22))
sketch4.addConstraint(Sketcher.Constraint("Equal", 22, 23))
sketch4.addConstraint(Sketcher.Constraint("Equal", 23, 24))
sketch4.addConstraint(Sketcher.Constraint("Equal", 24, 25))
sketch4.addConstraint(Sketcher.Constraint("Equal", 25, 26))
sketch4.addConstraint(Sketcher.Constraint("Equal", 26, 27))
sketch4.addConstraint(Sketcher.Constraint("Equal", 27, 28))
sketch4.addConstraint(Sketcher.Constraint("Equal", 28, 29))
sketch4.addConstraint(Sketcher.Constraint("Equal", 29, 30))
sketch4.addConstraint(Sketcher.Constraint("Equal", 30, 31))
sketch4.addConstraint(Sketcher.Constraint("Equal", 31, 32))
sketch4.addConstraint(Sketcher.Constraint("Equal", 32, 33))
sketch4.addConstraint(Sketcher.Constraint("Equal", 33, 34))
sketch4.addConstraint(Sketcher.Constraint("Equal", 34, 35))
sketch4.addConstraint(Sketcher.Constraint("Equal", 35, 36))
sketch4.addConstraint(Sketcher.Constraint("Equal", 36, 37))
sketch4.addConstraint(Sketcher.Constraint("Equal", 37, 38))
sketch4.addConstraint(Sketcher.Constraint("Equal", 38, 39))
sketch4.addConstraint(Sketcher.Constraint("Equal", 39, 40))
sketch4.addConstraint(Sketcher.Constraint("Equal", 40, 41))
sketch4.addConstraint(Sketcher.Constraint("Equal", 41, 42))
sketch4.addConstraint(Sketcher.Constraint("Equal", 42, 43))
sketch4.addConstraint(Sketcher.Constraint("Equal", 43, 44))
sketch4.addConstraint(Sketcher.Constraint("Equal", 44, 45))
sketch4.addConstraint(Sketcher.Constraint("Equal", 45, 46))
sketch4.addConstraint(Sketcher.Constraint("Equal", 46, 47))
sketch4.addConstraint(Sketcher.Constraint("Equal", 47, 48))
sketch4.addConstraint(Sketcher.Constraint("Equal", 48, 49))
sketch4.addConstraint(Sketcher.Constraint("Equal", 49, 50))
sketch4.addConstraint(Sketcher.Constraint("Equal", 50, 51))
sketch4.addConstraint(Sketcher.Constraint("Equal", 51, 52))
sketch4.addConstraint(Sketcher.Constraint("Equal", 52, 53))
sketch4.addConstraint(Sketcher.Constraint("Equal", 53, 54))
sketch4.addConstraint(Sketcher.Constraint("Equal", 54, 55))
sketch4.addConstraint(Sketcher.Constraint("Equal", 55, 56))
sketch4.addConstraint(Sketcher.Constraint("Equal", 56, 57))
sketch4.addConstraint(Sketcher.Constraint("Equal", 57, 58))
sketch4.addConstraint(Sketcher.Constraint("Symmetric", 28, 3, 30, 3, -1))
sketch4.addConstraint(Sketcher.Constraint("Symmetric", 27, 3, 31, 3, -1))
sketch4.addConstraint(Sketcher.Constraint("Symmetric", 26, 3, 32, 3, -1))
sketch4.addConstraint(Sketcher.Constraint("Symmetric", 25, 3, 33, 3, -1))
sketch4.addConstraint(Sketcher.Constraint("Symmetric", 24, 3, 34, 3, -1))
sketch4.addConstraint(Sketcher.Constraint("Symmetric", 23, 3, 35, 3, -1))
sketch4.addConstraint(Sketcher.Constraint("Symmetric", 22, 3, 36, 3, -1))
sketch4.addConstraint(Sketcher.Constraint("Symmetric", 21, 3, 37, 3, -1))
sketch4.addConstraint(Sketcher.Constraint("Symmetric", 20, 3, 38, 3, -1))
sketch4.addConstraint(Sketcher.Constraint("Symmetric", 19, 3, 39, 3, -1))
sketch4.addConstraint(Sketcher.Constraint("Symmetric", 18, 3, 40, 3, -1))
sketch4.addConstraint(Sketcher.Constraint("Symmetric", 17, 3, 41, 3, -1))
sketch4.addConstraint(Sketcher.Constraint("Symmetric", 16, 3, 42, 3, -1))
sketch4.addConstraint(Sketcher.Constraint("Symmetric", 15, 3, 43, 3, -1))
sketch4.addConstraint(Sketcher.Constraint("Symmetric", 14, 3, 44, 3, -1))
sketch4.addConstraint(Sketcher.Constraint("Symmetric", 13, 3, 45, 3, -1))
sketch4.addConstraint(Sketcher.Constraint("Symmetric", 12, 3, 46, 3, -1))
sketch4.addConstraint(Sketcher.Constraint("Symmetric", 11, 3, 47, 3, -1))
sketch4.addConstraint(Sketcher.Constraint("Symmetric", 10, 3, 48, 3, -1))
sketch4.addConstraint(Sketcher.Constraint("Symmetric", 9, 3, 49, 3, -1))
sketch4.addConstraint(Sketcher.Constraint("Symmetric", 8, 3, 50, 3, -1))
sketch4.addConstraint(Sketcher.Constraint("Symmetric", 7, 3, 51, 3, -1))
sketch4.addConstraint(Sketcher.Constraint("Symmetric", 6, 3, 52, 3, -1))
sketch4.addConstraint(Sketcher.Constraint("Symmetric", 5, 3, 53, 3, -1))
sketch4.addConstraint(Sketcher.Constraint("Symmetric", 4, 3, 54, 3, -1))
sketch4.addConstraint(Sketcher.Constraint("Symmetric", 3, 3, 55, 3, -1))
sketch4.addConstraint(Sketcher.Constraint("Symmetric", 2, 3, 56, 3, -1))
sketch4.addConstraint(Sketcher.Constraint("Symmetric", 0, 3, 57, 3, -1))
sketch4.addConstraint(Sketcher.Constraint("Symmetric", 1, 3, 58, 3, -1))
sketch4.addConstraint(Sketcher.Constraint("PointOnObject", 29, 3, -1))
sketch4.addConstraint(Sketcher.Constraint("Vertical", 0, 3, 1, 3))
sketch4.addConstraint(Sketcher.Constraint("Vertical", 1, 3, 2, 3))
sketch4.addConstraint(Sketcher.Constraint("Vertical", 2, 3, 3, 3))
sketch4.addConstraint(Sketcher.Constraint("Vertical", 3, 3, 4, 3))
sketch4.addConstraint(Sketcher.Constraint("Vertical", 4, 3, 5, 3))
sketch4.addConstraint(Sketcher.Constraint("Vertical", 5, 3, 6, 3))
sketch4.addConstraint(Sketcher.Constraint("Vertical", 6, 3, 7, 3))
sketch4.addConstraint(Sketcher.Constraint("Vertical", 7, 3, 8, 3))
sketch4.addConstraint(Sketcher.Constraint("Vertical", 8, 3, 9, 3))
sketch4.addConstraint(Sketcher.Constraint("Vertical", 9, 3, 10, 3))
sketch4.addConstraint(Sketcher.Constraint("Vertical", 10, 3, 11, 3))
sketch4.addConstraint(Sketcher.Constraint("Vertical", 11, 3, 12, 3))
sketch4.addConstraint(Sketcher.Constraint("Vertical", 12, 3, 13, 3))
sketch4.addConstraint(Sketcher.Constraint("Vertical", 13, 3, 14, 3))
sketch4.addConstraint(Sketcher.Constraint("Vertical", 14, 3, 15, 3))
sketch4.addConstraint(Sketcher.Constraint("Vertical", 15, 3, 16, 3))
sketch4.addConstraint(Sketcher.Constraint("Vertical", 16, 3, 17, 3))
sketch4.addConstraint(Sketcher.Constraint("Vertical", 17, 3, 18, 3))
sketch4.addConstraint(Sketcher.Constraint("Vertical", 18, 3, 19, 3))
sketch4.addConstraint(Sketcher.Constraint("Vertical", 19, 3, 20, 3))
sketch4.addConstraint(Sketcher.Constraint("Vertical", 20, 3, 21, 3))
sketch4.addConstraint(Sketcher.Constraint("Vertical", 21, 3, 22, 3))
sketch4.addConstraint(Sketcher.Constraint("Vertical", 22, 3, 23, 3))
sketch4.addConstraint(Sketcher.Constraint("Vertical", 23, 3, 24, 3))
sketch4.addConstraint(Sketcher.Constraint("Vertical", 24, 3, 25, 3))
sketch4.addConstraint(Sketcher.Constraint("Vertical", 25, 3, 26, 3))
sketch4.addConstraint(Sketcher.Constraint("Vertical", 26, 3, 27, 3))
sketch4.addConstraint(Sketcher.Constraint("Vertical", 27, 3, 28, 3))
sketch4.addConstraint(Sketcher.Constraint("Vertical", 28, 3, 29, 3))
sketch4.addConstraint(Sketcher.Constraint("Diameter", 0, Q("0.163 in")))
sketch4.addConstraint(Sketcher.Constraint("DistanceY", -1, 1, 0, 3, Q("28 in")))
sketch4.addConstraint(Sketcher.Constraint("DistanceY", -1, 1, 1, 3, Q("29 in")))
sketch4.addConstraint(Sketcher.Constraint("DistanceY", -1, 1, 2, 3, Q("27 in")))
sketch4.addConstraint(Sketcher.Constraint("DistanceY", -1, 1, 3, 3, Q("26 in")))
sketch4.addConstraint(Sketcher.Constraint("DistanceY", -1, 1, 4, 3, Q("25 in")))
sketch4.addConstraint(Sketcher.Constraint("DistanceY", -1, 1, 5, 3, Q("24 in")))
sketch4.addConstraint(Sketcher.Constraint("DistanceY", -1, 1, 6, 3, Q("23 in")))
sketch4.addConstraint(Sketcher.Constraint("DistanceY", -1, 1, 7, 3, Q("22 in")))
sketch4.addConstraint(Sketcher.Constraint("DistanceY", -1, 1, 8, 3, Q("21 in")))
sketch4.addConstraint(Sketcher.Constraint("DistanceY", -1, 1, 9, 3, Q("20 in")))
sketch4.addConstraint(Sketcher.Constraint("DistanceY", -1, 1, 10, 3, Q("19 in")))
sketch4.addConstraint(Sketcher.Constraint("DistanceY", -1, 1, 11, 3, Q("18 in")))
sketch4.addConstraint(Sketcher.Constraint("DistanceY", -1, 1, 12, 3, Q("17 in")))
sketch4.addConstraint(Sketcher.Constraint("DistanceY", -1, 1, 13, 3, Q("16 in")))
sketch4.addConstraint(Sketcher.Constraint("DistanceY", -1, 1, 14, 3, Q("15 in")))
sketch4.addConstraint(Sketcher.Constraint("DistanceY", -1, 1, 15, 3, Q("14 in")))
sketch4.addConstraint(Sketcher.Constraint("DistanceY", -1, 1, 16, 3, Q("13 in")))
sketch4.addConstraint(Sketcher.Constraint("DistanceY", -1, 1, 17, 3, Q("12 in")))
sketch4.addConstraint(Sketcher.Constraint("DistanceY", -1, 1, 18, 3, Q("11 in")))
sketch4.addConstraint(Sketcher.Constraint("DistanceY", -1, 1, 19, 3, Q("10 in")))
sketch4.addConstraint(Sketcher.Constraint("DistanceY", -1, 1, 20, 3, Q("9 in")))
sketch4.addConstraint(Sketcher.Constraint("DistanceY", -1, 1, 21, 3, Q("8 in")))
sketch4.addConstraint(Sketcher.Constraint("DistanceY", -1, 1, 22, 3, Q("7 in")))
sketch4.addConstraint(Sketcher.Constraint("DistanceY", -1, 1, 23, 3, Q("6 in")))
sketch4.addConstraint(Sketcher.Constraint("DistanceY", -1, 1, 24, 3, Q("5 in")))
sketch4.addConstraint(Sketcher.Constraint("DistanceY", -1, 1, 25, 3, Q("4 in")))
sketch4.addConstraint(Sketcher.Constraint("DistanceY", -1, 1, 26, 3, Q("3 in")))
sketch4.addConstraint(Sketcher.Constraint("DistanceY", -1, 1, 27, 3, Q("2 in")))
sketch4.addConstraint(Sketcher.Constraint("DistanceY", -1, 1, 28, 3, Q("1 in")))
sketch4.addConstraint(Sketcher.Constraint("DistanceX", -1, 1, 0, 3, Q("0.5 in")))
doc.recompute()
hole2 = body.newObject("PartDesign::Hole", "Hole001")
hole2.Profile = sketch4
hole2.ThreadType = "None"
hole2.Diameter = Q("0.163 in")
hole2.DepthType = "Dimension"
hole2.Depth = Q("1 in")
hole2.DrillPoint = "Flat"
hole2.Reversed = True
doc.recompute()

chamfer = body.newObject("PartDesign::Chamfer", "Chamfer")
chamfer.Base = (hole2, edges_at(hole2, [
    (25.4, 1.143, -749.3),
    (1.143, 25.4, 749.3),
    (1.143, 25.4, -749.3),
    (25.4, 1.143, 749.3),
]))
chamfer.Size = Q("0.085 in")
doc.recompute()

fillet = body.newObject("PartDesign::Fillet", "Fillet")
fillet.Base = (chamfer, edges_at(chamfer, [(2.286, 2.286, 0)]))
fillet.Radius = Q("0.032 in")
doc.recompute()

fillet2 = body.newObject("PartDesign::Fillet", "Fillet001")
fillet2.Base = (fillet, edges_at(fillet, [(0, 0, 0)]))
fillet2.Radius = Q("0.122 in")

sketch5 = body.newObject("Sketcher::SketchObject", "Sketch004")
sketch5.AttachmentSupport = (doc.getObject("XY_Plane"), [""])
sketch5.MapMode = "FlatFace"
sketch5.AttachmentOffset = App.Placement(App.Vector(0, 0, 29.5 * 25.4), App.Rotation())
add_polygon(sketch5, [(-45.655482, 42.767965), (-45.655482, -36.570365), (50.227482, -36.570365), (50.227482, 42.767965)])
sketch5.addConstraint(Sketcher.Constraint("Vertical", 0))
sketch5.addConstraint(Sketcher.Constraint("Horizontal", 1))
sketch5.addConstraint(Sketcher.Constraint("Vertical", 2))
sketch5.addConstraint(Sketcher.Constraint("Horizontal", 3))
sketch5.addConstraint(Sketcher.Constraint("DistanceY", 0, 2, 0, 1, 79.33833))
sketch5.addConstraint(Sketcher.Constraint("DistanceX", 1, 1, 1, 2, 95.882964))
sketch5.addConstraint(Sketcher.Constraint("DistanceX", 0, 2, -1, 1, 45.655482))
sketch5.addConstraint(Sketcher.Constraint("DistanceY", 0, 2, -1, 1, 36.570365))
pocket2 = body.newObject("PartDesign::Pocket", "Pocket001")
pocket2.Profile = sketch5
pocket2.Length = Q("54 in")

sketch6 = body.newObject("Sketcher::SketchObject", "Sketch005")
sketch6.AttachmentSupport = (doc.getObject("XY_Plane"), [""])
sketch6.MapMode = "FlatFace"
sketch6.AttachmentOffset = App.Placement(App.Vector(0, 0, -29.5 * 25.4), App.Rotation())
add_polygon(sketch6, [(30.643038, 26.948855), (30.643038, -24.333928), (-26.281485, -24.333928), (-26.281485, 26.948855)])
sketch6.addConstraint(Sketcher.Constraint("Vertical", 0))
sketch6.addConstraint(Sketcher.Constraint("Horizontal", 1))
sketch6.addConstraint(Sketcher.Constraint("Vertical", 2))
sketch6.addConstraint(Sketcher.Constraint("Horizontal", 3))
sketch6.addConstraint(Sketcher.Constraint("DistanceX", 1, 2, 1, 1, 56.924523))
sketch6.addConstraint(Sketcher.Constraint("DistanceY", 0, 2, 0, 1, 51.282783))
sketch6.addConstraint(Sketcher.Constraint("DistanceX", -1, 1, 0, 2, 30.643038))
sketch6.addConstraint(Sketcher.Constraint("DistanceY", 0, 2, -1, 1, 24.333928))
pocket3 = body.newObject("PartDesign::Pocket", "Pocket002")
pocket3.Profile = sketch6
pocket3.Length = Q("3 in")
pocket3.Reversed = True

sketch7 = body.newObject("Sketcher::SketchObject", "Sketch006")
sketch7.AttachmentSupport = (doc.getObject("XY_Plane"), [""])
sketch7.MapMode = "FlatFace"
sketch7.AttachmentOffset = App.Placement(App.Vector(0, 0, -24.5 * 25.4), App.Rotation())
add_polygon(sketch7, [(-23.876086, 35.087217), (-23.876086, -31.589518), (27.586436, -31.589518), (27.586436, 35.087217)])
sketch7.addConstraint(Sketcher.Constraint("Vertical", 0))
sketch7.addConstraint(Sketcher.Constraint("Horizontal", 1))
sketch7.addConstraint(Sketcher.Constraint("Vertical", 2))
sketch7.addConstraint(Sketcher.Constraint("Horizontal", 3))
sketch7.addConstraint(Sketcher.Constraint("DistanceX", 1, 1, 1, 2, 51.462523))
sketch7.addConstraint(Sketcher.Constraint("DistanceY", 0, 2, 0, 1, 66.676735))
sketch7.addConstraint(Sketcher.Constraint("DistanceX", 0, 2, -1, 1, 23.876086))
sketch7.addConstraint(Sketcher.Constraint("DistanceY", 0, 2, -1, 1, 31.589518))
pocket4 = body.newObject("PartDesign::Pocket", "Pocket003")
pocket4.Profile = sketch7
pocket4.Length = Q("0.09 in")

doc.recompute()
